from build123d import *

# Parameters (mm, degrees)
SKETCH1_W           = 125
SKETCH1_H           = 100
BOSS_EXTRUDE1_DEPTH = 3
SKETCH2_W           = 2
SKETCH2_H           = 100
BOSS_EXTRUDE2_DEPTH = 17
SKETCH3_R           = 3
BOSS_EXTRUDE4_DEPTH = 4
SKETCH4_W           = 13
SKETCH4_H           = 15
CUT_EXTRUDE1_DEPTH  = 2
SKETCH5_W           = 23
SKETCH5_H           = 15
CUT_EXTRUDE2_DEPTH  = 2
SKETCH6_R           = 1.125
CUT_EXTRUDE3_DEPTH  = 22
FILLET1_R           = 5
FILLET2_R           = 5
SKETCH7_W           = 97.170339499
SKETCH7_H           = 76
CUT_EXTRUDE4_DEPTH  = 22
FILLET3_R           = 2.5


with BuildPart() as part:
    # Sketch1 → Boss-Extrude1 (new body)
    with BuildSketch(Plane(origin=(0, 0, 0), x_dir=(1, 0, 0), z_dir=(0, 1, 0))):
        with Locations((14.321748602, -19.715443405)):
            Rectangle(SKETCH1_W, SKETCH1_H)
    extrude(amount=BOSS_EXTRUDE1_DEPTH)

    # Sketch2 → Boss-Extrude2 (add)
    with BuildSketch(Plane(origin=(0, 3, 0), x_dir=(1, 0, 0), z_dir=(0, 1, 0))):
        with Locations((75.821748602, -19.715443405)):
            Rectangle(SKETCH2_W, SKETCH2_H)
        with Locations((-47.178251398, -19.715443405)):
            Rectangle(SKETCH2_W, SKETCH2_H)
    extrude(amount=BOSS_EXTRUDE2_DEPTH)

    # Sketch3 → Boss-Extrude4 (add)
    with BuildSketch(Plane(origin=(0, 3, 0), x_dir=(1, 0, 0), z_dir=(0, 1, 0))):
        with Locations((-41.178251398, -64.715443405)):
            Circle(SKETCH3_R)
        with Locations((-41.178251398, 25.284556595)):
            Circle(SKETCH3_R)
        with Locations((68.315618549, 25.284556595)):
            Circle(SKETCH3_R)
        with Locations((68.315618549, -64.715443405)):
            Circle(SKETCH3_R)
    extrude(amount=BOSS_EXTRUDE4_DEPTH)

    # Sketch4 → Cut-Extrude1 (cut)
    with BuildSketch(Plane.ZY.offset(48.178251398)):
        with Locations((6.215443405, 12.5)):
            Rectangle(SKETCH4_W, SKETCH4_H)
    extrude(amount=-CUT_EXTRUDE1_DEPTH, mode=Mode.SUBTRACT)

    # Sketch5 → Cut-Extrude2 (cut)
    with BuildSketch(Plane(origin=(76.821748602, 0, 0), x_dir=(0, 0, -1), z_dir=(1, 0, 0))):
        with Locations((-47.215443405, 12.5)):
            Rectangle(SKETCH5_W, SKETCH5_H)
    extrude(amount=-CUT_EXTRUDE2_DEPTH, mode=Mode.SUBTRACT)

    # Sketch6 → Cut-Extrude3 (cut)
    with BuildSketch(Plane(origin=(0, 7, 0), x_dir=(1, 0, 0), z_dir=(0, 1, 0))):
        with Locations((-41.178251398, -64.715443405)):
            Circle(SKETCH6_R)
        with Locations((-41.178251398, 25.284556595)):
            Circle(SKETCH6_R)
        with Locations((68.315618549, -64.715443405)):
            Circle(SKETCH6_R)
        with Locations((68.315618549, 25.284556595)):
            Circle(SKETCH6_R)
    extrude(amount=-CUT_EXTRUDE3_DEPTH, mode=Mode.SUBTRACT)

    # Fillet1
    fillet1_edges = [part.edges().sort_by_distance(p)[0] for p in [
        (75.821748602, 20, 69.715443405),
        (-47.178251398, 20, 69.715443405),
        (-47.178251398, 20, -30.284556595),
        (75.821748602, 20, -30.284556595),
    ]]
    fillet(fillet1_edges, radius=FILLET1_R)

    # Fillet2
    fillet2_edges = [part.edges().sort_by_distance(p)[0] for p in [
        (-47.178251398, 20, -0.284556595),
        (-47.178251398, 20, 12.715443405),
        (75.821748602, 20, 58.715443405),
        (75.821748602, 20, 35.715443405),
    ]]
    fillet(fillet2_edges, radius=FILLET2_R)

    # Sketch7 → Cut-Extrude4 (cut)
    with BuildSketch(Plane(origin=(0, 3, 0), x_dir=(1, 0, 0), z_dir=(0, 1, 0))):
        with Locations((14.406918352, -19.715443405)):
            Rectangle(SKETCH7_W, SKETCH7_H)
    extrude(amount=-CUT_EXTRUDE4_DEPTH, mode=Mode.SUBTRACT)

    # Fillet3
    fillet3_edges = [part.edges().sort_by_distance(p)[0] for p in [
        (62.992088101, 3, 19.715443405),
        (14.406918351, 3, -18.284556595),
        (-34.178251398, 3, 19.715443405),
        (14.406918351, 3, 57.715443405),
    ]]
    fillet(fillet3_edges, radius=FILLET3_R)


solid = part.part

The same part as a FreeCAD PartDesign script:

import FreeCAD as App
import Part
import Sketcher


def edges_at(feature, points):
    """Names of the edges that pass closest to the given points."""
    edges = feature.Shape.Edges
    near = lambda p: min(range(len(edges)), key=lambda i: edges[i].distToShape(Part.Vertex(*p))[0])
    return sorted({f"Edge{near(p) + 1}" for p in points})

doc = App.newDocument("Part")
params = doc.addObject("Spreadsheet::Sheet", "Params")
for row, (alias, value) in enumerate([
    ("sketch1_width", "125 mm"),
    ("sketch1_height", "100 mm"),
    ("pad1_length", "3 mm"),
    ("sketch2_width", "2 mm"),
    ("sketch2_height", "100 mm"),
    ("pad2_length", "17 mm"),
    ("sketch3_diameter", "6 mm"),
    ("pad3_length", "4 mm"),
    ("sketch4_width", "15 mm"),
    ("sketch4_height", "13 mm"),
    ("pocket1_length", "2 mm"),
    ("sketch5_width", "15 mm"),
    ("sketch5_height", "23 mm"),
    ("pocket2_length", "2 mm"),
    ("sketch6_diameter", "2.25 mm"),
    ("pocket3_length", "22 mm"),
    ("fillet_radius", "5 mm"),
    ("fillet2_radius", "5 mm"),
    ("sketch7_height", "76 mm"),
    ("pocket4_length", "22 mm"),
    ("fillet3_radius", "2.5 mm"),
], start=1):
    params.set(f"A{row}", alias)
    params.set(f"B{row}", "=" + value)
    params.setAlias(f"B{row}", alias)

body = doc.addObject("PartDesign::Body", "Body")

sketch1 = body.newObject("Sketcher::SketchObject", "Sketch")
sketch1.AttachmentSupport = (doc.getObject("XZ_Plane"), [""])
sketch1.MapMode = "FlatFace"
sketch1.addGeometry([
    Part.LineSegment(App.Vector(-48.178251, -30.284557, 0), App.Vector(-48.178251, 69.715443, 0)),
    Part.LineSegment(App.Vector(-48.178251, 69.715443, 0), App.Vector(76.821749, 69.715443, 0)),
    Part.LineSegment(App.Vector(76.821749, 69.715443, 0), App.Vector(76.821749, -30.284557, 0)),
    Part.LineSegment(App.Vector(76.821749, -30.284557, 0), App.Vector(-48.178251, -30.284557, 0)),
], False)
sketch1.addConstraint([
    Sketcher.Constraint("Coincident", 0, 2, 1, 1),
    Sketcher.Constraint("Coincident", 1, 2, 2, 1),
    Sketcher.Constraint("Coincident", 2, 2, 3, 1),
    Sketcher.Constraint("Coincident", 3, 2, 0, 1),
    Sketcher.Constraint("Vertical", 0),
    Sketcher.Constraint("Horizontal", 1),
    Sketcher.Constraint("Vertical", 2),
    Sketcher.Constraint("Horizontal", 3),
    Sketcher.Constraint("DistanceX", 1, 1, 1, 2, 125.0),
    Sketcher.Constraint("DistanceY", 0, 1, 0, 2, 100.0),
    Sketcher.Constraint("DistanceX", 0, 2, -1, 1, 48.178251),
    Sketcher.Constraint("DistanceY", -1, 1, 0, 2, 69.715443),
])
sketch1.setExpression("Constraints[8]", "Params.sketch1_width")
sketch1.setExpression("Constraints[9]", "Params.sketch1_height")
pad1 = body.newObject("PartDesign::Pad", "Pad")
pad1.Profile = sketch1
pad1.setExpression("Length", "Params.pad1_length")
pad1.Reversed = True

sketch2 = body.newObject("Sketcher::SketchObject", "Sketch001")
sketch2.AttachmentSupport = (doc.getObject("XZ_Plane"), [""])
sketch2.MapMode = "FlatFace"
sketch2.AttachmentOffset = App.Placement(App.Vector(0, 0, -3), App.Rotation())
sketch2.addGeometry([
    Part.LineSegment(App.Vector(74.821749, -30.284557, 0), App.Vector(74.821749, 69.715443, 0)),
    Part.LineSegment(App.Vector(74.821749, 69.715443, 0), App.Vector(76.821749, 69.715443, 0)),
    Part.LineSegment(App.Vector(76.821749, 69.715443, 0), App.Vector(76.821749, -30.284557, 0)),
    Part.LineSegment(App.Vector(76.821749, -30.284557, 0), App.Vector(74.821749, -30.284557, 0)),
    Part.LineSegment(App.Vector(-48.178251, -30.284557, 0), App.Vector(-48.178251, 69.715443, 0)),
    Part.LineSegment(App.Vector(-48.178251, 69.715443, 0), App.Vector(-46.178251, 69.715443, 0)),
    Part.LineSegment(App.Vector(-46.178251, 69.715443, 0), App.Vector(-46.178251, -30.284557, 0)),
    Part.LineSegment(App.Vector(-46.178251, -30.284557, 0), App.Vector(-48.178251, -30.284557, 0)),
], False)
sketch2.addConstraint([
    Sketcher.Constraint("Coincident", 0, 2, 1, 1),
    Sketcher.Constraint("Coincident", 1, 2, 2, 1),
    Sketcher.Constraint("Coincident", 2, 2, 3, 1),
    Sketcher.Constraint("Coincident", 3, 2, 0, 1),
    Sketcher.Constraint("Coincident", 4, 2, 5, 1),
    Sketcher.Constraint("Coincident", 5, 2, 6, 1),
    Sketcher.Constraint("Coincident", 6, 2, 7, 1),
    Sketcher.Constraint("Coincident", 7, 2, 4, 1),
    Sketcher.Constraint("Vertical", 0),
    Sketcher.Constraint("Horizontal", 1),
    Sketcher.Constraint("Vertical", 2),
    Sketcher.Constraint("Horizontal", 3),
    Sketcher.Constraint("Vertical", 4),
    Sketcher.Constraint("Horizontal", 5),
    Sketcher.Constraint("Vertical", 6),
    Sketcher.Constraint("Horizontal", 7),
    Sketcher.Constraint("Horizontal", 1, 2, 4, 2),
    Sketcher.Constraint("Horizontal", 3, 2, 6, 2),
    Sketcher.Constraint("Equal", 3, 5),
    Sketcher.Constraint("DistanceX", 1, 1, 1, 2, 2.0),
    Sketcher.Constraint("DistanceY", 0, 1, 0, 2, 100.0),
    Sketcher.Constraint("DistanceX", 4, 2, 0, 2, 123.0),
    Sketcher.Constraint("DistanceX", -1, 1, 0, 2, 74.821749),
    Sketcher.Constraint("DistanceY", -1, 1, 0, 2, 69.715443),
])
sketch2.setExpression("Constraints[19]", "Params.sketch2_width")
sketch2.setExpression("Constraints[20]", "Params.sketch2_height")
pad2 = body.newObject("PartDesign::Pad", "Pad001")
pad2.Profile = sketch2
pad2.setExpression("Length", "Params.pad2_length")
pad2.Reversed = True

sketch3 = body.newObject("Sketcher::SketchObject", "Sketch002")
sketch3.AttachmentSupport = (doc.getObject("XZ_Plane"), [""])
sketch3.MapMode = "FlatFace"
sketch3.AttachmentOffset = App.Placement(App.Vector(0, 0, -3), App.Rotation())
sketch3.addGeometry([
    Part.Circle(App.Vector(-41.178251, 64.715443, 0), App.Vector(0, 0, 1), 3),
    Part.Circle(App.Vector(-41.178251, -25.284557, 0), App.Vector(0, 0, 1), 3),
    Part.Circle(App.Vector(68.315619, -25.284557, 0), App.Vector(0, 0, 1), 3),
    Part.Circle(App.Vector(68.315619, 64.715443, 0), App.Vector(0, 0, 1), 3),
], False)
sketch3.addConstraint([
    Sketcher.Constraint("Equal", 0, 1),
    Sketcher.Constraint("Equal", 1, 2),
    Sketcher.Constraint("Equal", 2, 3),
    Sketcher.Constraint("Horizontal", 1, 3, 2, 3),
    Sketcher.Constraint("Horizontal", 0, 3, 3, 3),
    Sketcher.Constraint("Vertical", 0, 3, 1, 3),
    Sketcher.Constraint("Vertical", 2, 3, 3, 3),
    Sketcher.Constraint("Diameter", 0, 6.0),
    Sketcher.Constraint("DistanceY", 1, 3, 0, 3, 90.0),
    Sketcher.Constraint("DistanceX", 0, 3, -1, 1, 41.178251),
    Sketcher.Constraint("DistanceX", -1, 1, 2, 3, 68.315619),
    Sketcher.Constraint("DistanceY", -1, 1, 0, 3, 64.715443),
])
sketch3.setExpression("Constraints[7]", "Params.sketch3_diameter")
pad3 = body.newObject("PartDesign::Pad", "Pad002")
pad3.Profile = sketch3
pad3.setExpression("Length", "Params.pad3_length")
pad3.Reversed = True

sketch4 = body.newObject("Sketcher::SketchObject", "Sketch003")
sketch4.AttachmentSupport = (doc.getObject("YZ_Plane"), [""])
sketch4.MapMode = "FlatFace"
sketch4.AttachmentOffset = App.Placement(App.Vector(0, 0, -48.178251), App.Rotation())
sketch4.addGeometry([
    Part.LineSegment(App.Vector(20, -0.284557, 0), App.Vector(5, -0.284557, 0)),
    Part.LineSegment(App.Vector(5, -0.284557, 0), App.Vector(5, 12.715443, 0)),
    Part.LineSegment(App.Vector(5, 12.715443, 0), App.Vector(20, 12.715443, 0)),
    Part.LineSegment(App.Vector(20, 12.715443, 0), App.Vector(20, -0.284557, 0)),
], False)
sketch4.addConstraint([
    Sketcher.Constraint("Coincident", 0, 2, 1, 1),
    Sketcher.Constraint("Coincident", 1, 2, 2, 1),
    Sketcher.Constraint("Coincident", 2, 2, 3, 1),
    Sketcher.Constraint("Coincident", 3, 2, 0, 1),
    Sketcher.Constraint("Horizontal", 0),
    Sketcher.Constraint("Vertical", 1),
    Sketcher.Constraint("Horizontal", 2),
    Sketcher.Constraint("Vertical", 3),
    Sketcher.Constraint("DistanceX", 0, 2, 0, 1, 15.0),
    Sketcher.Constraint("DistanceY", 1, 1, 1, 2, 13.0),
    Sketcher.Constraint("DistanceX", -1, 1, 0, 2, 5.0),
    Sketcher.Constraint("DistanceY", 0, 2, -1, 1, 0.284557),
])
sketch4.setExpression("Constraints[8]", "Params.sketch4_width")
sketch4.setExpression("Constraints[9]", "Params.sketch4_height")
pocket1 = body.newObject("PartDesign::Pocket", "Pocket")
pocket1.Profile = sketch4
pocket1.setExpression("Length", "Params.pocket1_length")
pocket1.Reversed = True

sketch5 = body.newObject("Sketcher::SketchObject", "Sketch004")
sketch5.AttachmentSupport = (doc.getObject("YZ_Plane"), [""])
sketch5.MapMode = "FlatFace"
sketch5.AttachmentOffset = App.Placement(App.Vector(0, 0, 76.821749), App.Rotation())
sketch5.addGeometry([
    Part.LineSegment(App.Vector(20, 58.715443, 0), App.Vector(5, 58.715443, 0)),
    Part.LineSegment(App.Vector(5, 58.715443, 0), App.Vector(5, 35.715443, 0)),
    Part.LineSegment(App.Vector(5, 35.715443, 0), App.Vector(20, 35.715443, 0)),
    Part.LineSegment(App.Vector(20, 35.715443, 0), App.Vector(20, 58.715443, 0)),
], False)
sketch5.addConstraint([
    Sketcher.Constraint("Coincident", 0, 2, 1, 1),
    Sketcher.Constraint("Coincident", 1, 2, 2, 1),
    Sketcher.Constraint("Coincident", 2, 2, 3, 1),
    Sketcher.Constraint("Coincident", 3, 2, 0, 1),
    Sketcher.Constraint("Horizontal", 0),
    Sketcher.Constraint("Vertical", 1),
    Sketcher.Constraint("Horizontal", 2),
    Sketcher.Constraint("Vertical", 3),
    Sketcher.Constraint("DistanceX", 0, 2, 0, 1, 15.0),
    Sketcher.Constraint("DistanceY", 1, 2, 1, 1, 23.0),
    Sketcher.Constraint("DistanceX", -1, 1, 0, 2, 5.0),
    Sketcher.Constraint("DistanceY", -1, 1, 0, 2, 58.715443),
])
sketch5.setExpression("Constraints[8]", "Params.sketch5_width")
sketch5.setExpression("Constraints[9]", "Params.sketch5_height")
pocket2 = body.newObject("PartDesign::Pocket", "Pocket001")
pocket2.Profile = sketch5
pocket2.setExpression("Length", "Params.pocket2_length")

sketch6 = body.newObject("Sketcher::SketchObject", "Sketch005")
sketch6.AttachmentSupport = (doc.getObject("XZ_Plane"), [""])
sketch6.MapMode = "FlatFace"
sketch6.AttachmentOffset = App.Placement(App.Vector(0, 0, -7), App.Rotation())
sketch6.addGeometry([
    Part.Circle(App.Vector(-41.178251, 64.715443, 0), App.Vector(0, 0, 1), 1.125),
    Part.Circle(App.Vector(-41.178251, -25.284557, 0), App.Vector(0, 0, 1), 1.125),
    Part.Circle(App.Vector(68.315619, 64.715443, 0), App.Vector(0, 0, 1), 1.125),
    Part.Circle(App.Vector(68.315619, -25.284557, 0), App.Vector(0, 0, 1), 1.125),
], False)
sketch6.addConstraint([
    Sketcher.Constraint("Equal", 0, 1),
    Sketcher.Constraint("Equal", 1, 2),
    Sketcher.Constraint("Equal", 2, 3),
    Sketcher.Constraint("Horizontal", 0, 3, 2, 3),
    Sketcher.Constraint("Horizontal", 1, 3, 3, 3),
    Sketcher.Constraint("Vertical", 0, 3, 1, 3),
    Sketcher.Constraint("Vertical", 2, 3, 3, 3),
    Sketcher.Constraint("Diameter", 0, 2.25),
    Sketcher.Constraint("DistanceY", 1, 3, 0, 3, 90.0),
    Sketcher.Constraint("DistanceX", 0, 3, -1, 1, 41.178251),
    Sketcher.Constraint("DistanceX", -1, 1, 2, 3, 68.315619),
    Sketcher.Constraint("DistanceY", -1, 1, 0, 3, 64.715443),
])
sketch6.setExpression("Constraints[7]", "Params.sketch6_diameter")
pocket3 = body.newObject("PartDesign::Pocket", "Pocket002")
pocket3.Profile = sketch6
pocket3.setExpression("Length", "Params.pocket3_length")
pocket3.Reversed = True
doc.recompute()

fillet = body.newObject("PartDesign::Fillet", "Fillet")
fillet.Base = (pocket3, edges_at(pocket3, [
    (75.822, 20, 69.715),
    (-47.178, 20, 69.715),
    (-47.178, 20, -30.285),
    (75.822, 20, -30.285),
]))
fillet.setExpression("Radius", "Params.fillet_radius")
doc.recompute()

fillet2 = body.newObject("PartDesign::Fillet", "Fillet001")
fillet2.Base = (fillet, edges_at(fillet, [
    (-47.178, 20, -0.285),
    (-47.178, 20, 12.715),
    (75.822, 20, 58.715),
    (75.822, 20, 35.715),
]))
fillet2.setExpression("Radius", "Params.fillet2_radius")

sketch7 = body.newObject("Sketcher::SketchObject", "Sketch006")
sketch7.AttachmentSupport = (doc.getObject("XZ_Plane"), [""])
sketch7.MapMode = "FlatFace"
sketch7.AttachmentOffset = App.Placement(App.Vector(0, 0, -3), App.Rotation())
sketch7.addGeometry([
    Part.LineSegment(App.Vector(-34.178251, -18.284557, 0), App.Vector(-34.178251, 57.715443, 0)),
    Part.LineSegment(App.Vector(-34.178251, 57.715443, 0), App.Vector(62.992088, 57.715443, 0)),
    Part.LineSegment(App.Vector(62.992088, 57.715443, 0), App.Vector(62.992088, -18.284557, 0)),
    Part.LineSegment(App.Vector(62.992088, -18.284557, 0), App.Vector(-34.178251, -18.284557, 0)),
], False)
sketch7.addConstraint([
    Sketcher.Constraint("Coincident", 0, 2, 1, 1),
    Sketcher.Constraint("Coincident", 1, 2, 2, 1),
    Sketcher.Constraint("Coincident", 2, 2, 3, 1),
    Sketcher.Constraint("Coincident", 3, 2, 0, 1),
    Sketcher.Constraint("Vertical", 0),
    Sketcher.Constraint("Horizontal", 1),
    Sketcher.Constraint("Vertical", 2),
    Sketcher.Constraint("Horizontal", 3),
    Sketcher.Constraint("DistanceY", 0, 1, 0, 2, 76.0),
    Sketcher.Constraint("DistanceX", 1, 1, 1, 2, 97.170339),
    Sketcher.Constraint("DistanceX", 0, 2, -1, 1, 34.178251),
    Sketcher.Constraint("DistanceY", -1, 1, 0, 2, 57.715443),
])
sketch7.setExpression("Constraints[8]", "Params.sketch7_height")
pocket4 = body.newObject("PartDesign::Pocket", "Pocket003")
pocket4.Profile = sketch7
pocket4.setExpression("Length", "Params.pocket4_length")
pocket4.Reversed = True
doc.recompute()

fillet3 = body.newObject("PartDesign::Fillet", "Fillet002")
fillet3.Base = (pocket4, edges_at(pocket4, [
    (62.992, 3, 19.715),
    (14.407, 3, -18.285),
    (-34.178, 3, 19.715),
    (14.407, 3, 57.715),
]))
fillet3.setExpression("Radius", "Params.fillet3_radius")

doc.recompute()
